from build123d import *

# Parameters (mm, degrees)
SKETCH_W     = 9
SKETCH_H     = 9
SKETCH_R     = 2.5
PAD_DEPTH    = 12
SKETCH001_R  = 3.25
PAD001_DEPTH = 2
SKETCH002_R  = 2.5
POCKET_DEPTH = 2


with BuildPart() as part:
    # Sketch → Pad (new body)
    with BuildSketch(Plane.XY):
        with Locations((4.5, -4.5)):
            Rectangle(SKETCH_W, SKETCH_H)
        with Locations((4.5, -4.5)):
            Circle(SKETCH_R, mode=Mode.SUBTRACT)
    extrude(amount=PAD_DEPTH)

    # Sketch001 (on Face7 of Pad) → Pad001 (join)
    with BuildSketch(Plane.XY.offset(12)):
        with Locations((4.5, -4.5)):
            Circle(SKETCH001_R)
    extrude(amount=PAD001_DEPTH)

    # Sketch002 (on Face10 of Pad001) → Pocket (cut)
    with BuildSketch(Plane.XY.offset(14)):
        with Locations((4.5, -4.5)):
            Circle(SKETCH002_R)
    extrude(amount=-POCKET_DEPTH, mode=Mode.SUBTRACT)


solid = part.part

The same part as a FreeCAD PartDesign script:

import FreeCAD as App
import Part
import Sketcher

V = App.Vector
Q = App.Units.Quantity


def add_polygon(sketch, points):
    """Adds a closed chain of lines whose ends are joined by coincident constraints."""
    first, n = sketch.GeometryCount, len(points)
    for a, b in zip(points, points[1:] + points[:1]):
        sketch.addGeometry(Part.LineSegment(App.Vector(*a, 0), App.Vector(*b, 0)), False)
    for i in range(n):
        sketch.addConstraint(Sketcher.Constraint("Coincident", first + i, 2, first + (i + 1) % n, 1))

doc = App.newDocument("Part")
body = doc.addObject("PartDesign::Body", "Body")

# Sketch on XY plane
sketch1 = doc.addObject("Sketcher::SketchObject", "Sketch")
body.addObject(sketch1)
sketch1.AttachmentSupport = (doc.XY_Plane, [""])
sketch1.MapMode = "FlatFace"
add_polygon(sketch1, [(0, 0), (0, -9), (9, -9), (9, 0)])  # lines 0-3
sketch1.addGeometry(Part.Circle(V(4.5, -4.5, 0), V(0, 0, 1), 2.5), False)  # 4
sketch1.addConstraint([
    Sketcher.Constraint("Vertical", 0),
    Sketcher.Constraint("Horizontal", 1),
    Sketcher.Constraint("Vertical", 2),
    Sketcher.Constraint("Horizontal", 3),
    Sketcher.Constraint("Coincident", 3, 2, -1, 1),
    Sketcher.Constraint("Equal", 3, 0),
    Sketcher.Constraint("Diameter", 4, Q("5 mm")),
    Sketcher.Constraint("DistanceX", 1, 1, 1, 2, Q("9 mm")),
    Sketcher.Constraint("DistanceX", -1, 1, 4, 3, Q("4.5 mm")),
    Sketcher.Constraint("DistanceY", 4, 3, -1, 1, Q("4.5 mm")),
])
pad1 = doc.addObject("PartDesign::Pad", "Pad")
body.addObject(pad1)
pad1.Profile = sketch1
pad1.Length = 12

# Sketch on XY plane
sketch2 = doc.addObject("Sketcher::SketchObject", "Sketch001")
body.addObject(sketch2)
sketch2.AttachmentSupport = (doc.XY_Plane, [""])
sketch2.MapMode = "FlatFace"
sketch2.AttachmentOffset = App.Placement(V(0, 0, 12), App.Rotation())
sketch2.addGeometry(Part.Circle(V(4.5, -4.5, 0), V(0, 0, 1), 3.2), False)
sketch2.addConstraint([
    Sketcher.Constraint("Diameter", 0, Q("6.5 mm")),
    Sketcher.Constraint("DistanceX", -1, 1, 0, 3, Q("4.5 mm")),
    Sketcher.Constraint("DistanceY", 0, 3, -1, 1, Q("4.5 mm")),
])
pad2 = doc.addObject("PartDesign::Pad", "Pad001")
body.addObject(pad2)
pad2.Profile = sketch2
pad2.Length = 2

# Sketch on XY plane
sketch3 = doc.addObject("Sketcher::SketchObject", "Sketch002")
body.addObject(sketch3)
sketch3.AttachmentSupport = (doc.XY_Plane, [""])
sketch3.MapMode = "FlatFace"
sketch3.AttachmentOffset = App.Placement(V(0, 0, 14), App.Rotation())
sketch3.addGeometry(Part.Circle(V(4.5, -4.5, 0), V(0, 0, 1), 2.5), False)
sketch3.addConstraint([
    Sketcher.Constraint("Diameter", 0, Q("5 mm")),
    Sketcher.Constraint("DistanceX", -1, 1, 0, 3, Q("4.5 mm")),
    Sketcher.Constraint("DistanceY", 0, 3, -1, 1, Q("4.5 mm")),
])
pocket1 = doc.addObject("PartDesign::Pocket", "Pocket")
body.addObject(pocket1)
pocket1.Profile = sketch3
pocket1.Length = 2

doc.recompute()
